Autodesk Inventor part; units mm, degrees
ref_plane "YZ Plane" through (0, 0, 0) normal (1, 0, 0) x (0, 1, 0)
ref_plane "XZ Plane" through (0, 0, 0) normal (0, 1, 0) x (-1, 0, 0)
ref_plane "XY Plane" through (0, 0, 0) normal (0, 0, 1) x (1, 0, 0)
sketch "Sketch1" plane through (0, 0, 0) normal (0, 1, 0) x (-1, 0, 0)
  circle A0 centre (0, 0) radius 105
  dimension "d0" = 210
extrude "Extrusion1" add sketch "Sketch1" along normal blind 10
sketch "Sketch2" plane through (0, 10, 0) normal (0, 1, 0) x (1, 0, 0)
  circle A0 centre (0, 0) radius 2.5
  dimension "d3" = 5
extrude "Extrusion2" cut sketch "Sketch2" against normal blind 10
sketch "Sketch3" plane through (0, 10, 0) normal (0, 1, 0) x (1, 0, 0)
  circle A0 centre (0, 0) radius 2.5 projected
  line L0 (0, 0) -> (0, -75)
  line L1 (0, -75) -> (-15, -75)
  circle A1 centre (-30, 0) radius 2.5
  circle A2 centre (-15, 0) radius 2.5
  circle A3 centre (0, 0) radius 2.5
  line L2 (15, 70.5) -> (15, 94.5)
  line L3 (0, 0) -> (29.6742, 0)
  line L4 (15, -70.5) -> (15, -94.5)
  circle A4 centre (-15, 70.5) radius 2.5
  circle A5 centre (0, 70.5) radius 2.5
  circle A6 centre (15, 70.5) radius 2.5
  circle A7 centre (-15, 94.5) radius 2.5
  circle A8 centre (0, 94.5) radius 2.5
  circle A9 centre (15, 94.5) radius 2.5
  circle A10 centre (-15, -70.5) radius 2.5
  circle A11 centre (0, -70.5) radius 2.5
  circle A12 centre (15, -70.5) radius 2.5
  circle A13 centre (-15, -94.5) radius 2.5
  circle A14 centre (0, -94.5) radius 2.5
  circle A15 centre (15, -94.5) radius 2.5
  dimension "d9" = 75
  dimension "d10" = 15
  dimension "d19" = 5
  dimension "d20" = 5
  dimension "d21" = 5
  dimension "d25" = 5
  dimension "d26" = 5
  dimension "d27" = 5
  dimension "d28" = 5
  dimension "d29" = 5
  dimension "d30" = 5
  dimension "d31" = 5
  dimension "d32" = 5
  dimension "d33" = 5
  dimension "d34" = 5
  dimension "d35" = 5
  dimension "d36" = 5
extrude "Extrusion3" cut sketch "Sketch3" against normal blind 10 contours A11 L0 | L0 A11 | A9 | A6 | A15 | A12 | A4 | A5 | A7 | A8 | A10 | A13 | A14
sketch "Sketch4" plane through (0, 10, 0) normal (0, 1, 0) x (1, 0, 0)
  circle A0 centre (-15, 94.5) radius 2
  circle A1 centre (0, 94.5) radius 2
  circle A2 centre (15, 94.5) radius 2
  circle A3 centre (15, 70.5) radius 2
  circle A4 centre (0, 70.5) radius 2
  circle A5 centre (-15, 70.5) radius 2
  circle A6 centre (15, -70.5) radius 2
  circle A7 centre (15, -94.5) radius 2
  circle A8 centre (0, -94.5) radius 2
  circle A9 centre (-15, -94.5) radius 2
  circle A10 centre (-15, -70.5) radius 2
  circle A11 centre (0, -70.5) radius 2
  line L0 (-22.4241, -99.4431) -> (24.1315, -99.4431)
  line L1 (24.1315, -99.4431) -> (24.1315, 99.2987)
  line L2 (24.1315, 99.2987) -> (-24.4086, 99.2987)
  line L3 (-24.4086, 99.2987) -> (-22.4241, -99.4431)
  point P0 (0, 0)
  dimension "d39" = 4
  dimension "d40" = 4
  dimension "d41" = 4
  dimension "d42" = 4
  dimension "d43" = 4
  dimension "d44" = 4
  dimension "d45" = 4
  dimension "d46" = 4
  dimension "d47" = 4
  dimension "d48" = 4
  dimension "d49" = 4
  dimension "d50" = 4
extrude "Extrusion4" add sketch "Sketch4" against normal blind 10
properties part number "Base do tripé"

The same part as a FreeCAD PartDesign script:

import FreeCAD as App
import Part
import Sketcher

V = App.Vector
Q = App.Units.Quantity


def add_polygon(sketch, points):
    """Adds a closed chain of lines whose ends are joined by coincident constraints."""
    first, n = sketch.GeometryCount, len(points)
    for a, b in zip(points, points[1:] + points[:1]):
        sketch.addGeometry(Part.LineSegment(App.Vector(*a, 0), App.Vector(*b, 0)), False)
    for i in range(n):
        sketch.addConstraint(Sketcher.Constraint("Coincident", first + i, 2, first + (i + 1) % n, 1))

doc = App.newDocument("Part")
body = doc.addObject("PartDesign::Body", "Body")

# Sketch on XZ plane
sketch1 = body.newObject("Sketcher::SketchObject", "Sketch")
sketch1.AttachmentSupport = (doc.getObject("XZ_Plane"), [""])
sketch1.MapMode = "FlatFace"
sketch1.addGeometry(Part.Circle(V(0, 0, 0), V(0, 0, 1), 105), False)
sketch1.addConstraint([
    Sketcher.Constraint("Coincident", 0, 3, -1, 1),
    Sketcher.Constraint("Diameter", 0, Q("210 mm")),
])
pad1 = body.newObject("PartDesign::Pad", "Pad")
pad1.Profile = sketch1
pad1.Length = 10
pad1.Reversed = True

# Sketch on XZ plane
sketch2 = body.newObject("Sketcher::SketchObject", "Sketch001")
sketch2.AttachmentSupport = (doc.getObject("XZ_Plane"), [""])
sketch2.MapMode = "FlatFace"
sketch2.AttachmentOffset = App.Placement(V(0, 0, -10), App.Rotation())
sketch2.addGeometry(Part.Circle(V(0, 0, 0), V(0, 0, 1), 2.5), False)
sketch2.addConstraint([
    Sketcher.Constraint("Coincident", 0, 3, -1, 1),
    Sketcher.Constraint("Diameter", 0, Q("5 mm")),
])
pocket1 = body.newObject("PartDesign::Pocket", "Pocket")
pocket1.Profile = sketch2
pocket1.Length = 10
pocket1.Reversed = True

# Sketch on XZ plane
sketch3 = body.newObject("Sketcher::SketchObject", "Sketch002")
sketch3.AttachmentSupport = (doc.getObject("XZ_Plane"), [""])
sketch3.MapMode = "FlatFace"
sketch3.AttachmentOffset = App.Placement(V(0, 0, -10), App.Rotation())
sketch3.addGeometry([
    Part.Circle(V(0, 70.5, 0), V(0, 0, 1), 2.5),  # 0
    Part.Circle(V(15, -94.5, 0), V(0, 0, 1), 2.5),  # 1
    Part.Circle(V(15, -70.5, 0), V(0, 0, 1), 2.5),  # 2
    Part.Circle(V(15, 94.5, 0), V(0, 0, 1), 2.5),  # 3
    Part.Circle(V(15, 70.5, 0), V(0, 0, 1), 2.5),  # 4
    Part.Circle(V(-15, -70.5, 0), V(0, 0, 1), 2.5),  # 5
    Part.Circle(V(0, -70.5, 0), V(0, 0, 1), 2.5),  # 6
    Part.Circle(V(-15, -94.5, 0), V(0, 0, 1), 2.5),  # 7
    Part.Circle(V(0, -94.5, 0), V(0, 0, 1), 2.5),  # 8
    Part.Circle(V(-15, 70.5, 0), V(0, 0, 1), 2.5),  # 9
    Part.Circle(V(-15, 94.5, 0), V(0, 0, 1), 2.5),  # 10
    Part.Circle(V(0, 94.5, 0), V(0, 0, 1), 2.5),  # 11
], False)
sketch3.addConstraint([
    Sketcher.Constraint("Equal", 0, 1),
    Sketcher.Constraint("Equal", 1, 2),
    Sketcher.Constraint("Equal", 2, 3),
    Sketcher.Constraint("Equal", 3, 4),
    Sketcher.Constraint("Equal", 4, 5),
    Sketcher.Constraint("Equal", 5, 6),
    Sketcher.Constraint("Equal", 6, 7),
    Sketcher.Constraint("Equal", 7, 8),
    Sketcher.Constraint("Equal", 8, 9),
    Sketcher.Constraint("Equal", 9, 10),
    Sketcher.Constraint("Equal", 10, 11),
    Sketcher.Constraint("Symmetric", 4, 3, 5, 3, -1, 1),
    Sketcher.Constraint("Symmetric", 0, 3, 6, 3, -1, 1),
    Sketcher.Constraint("Symmetric", 3, 3, 7, 3, -1, 1),
    Sketcher.Constraint("Symmetric", 2, 3, 9, 3, -1, 1),
    Sketcher.Constraint("Symmetric", 1, 3, 10, 3, -1, 1),
    Sketcher.Constraint("Symmetric", 8, 3, 11, 3, -1, 1),
    Sketcher.Constraint("Symmetric", 2, 3, 5, 3, -2),
    Sketcher.Constraint("Symmetric", 1, 3, 7, 3, -2),
    Sketcher.Constraint("PointOnObject", 0, 3, -2),
    Sketcher.Constraint("PointOnObject", 8, 3, -2),
    Sketcher.Constraint("Horizontal", 0, 3, 4, 3),
    Sketcher.Constraint("Horizontal", 7, 3, 8, 3),
    Sketcher.Constraint("Vertical", 1, 3, 2, 3),
    Sketcher.Constraint("Diameter", 0, Q("5 mm")),
    Sketcher.Constraint("DistanceX", -1, 1, 1, 3, Q("15 mm")),
    Sketcher.Constraint("DistanceY", 1, 3, 0, 3, Q("165 mm")),
    Sketcher.Constraint("DistanceY", 1, 3, 2, 3, Q("24 mm")),
])
pocket2 = body.newObject("PartDesign::Pocket", "Pocket001")
pocket2.Profile = sketch3
pocket2.Length = 10
pocket2.Reversed = True

# Sketch on XZ plane
sketch4 = body.newObject("Sketcher::SketchObject", "Sketch003")
sketch4.AttachmentSupport = (doc.getObject("XZ_Plane"), [""])
sketch4.MapMode = "FlatFace"
sketch4.AttachmentOffset = App.Placement(V(0, 0, -10), App.Rotation())
add_polygon(sketch4, [(-24.4, -99.3), (-22.4, 99.4), (24.1, 99.4), (24.1, -99.3)])  # lines 0-3
sketch4.addGeometry(Part.Circle(V(-15, 94.5, 0), V(0, 0, 1), 2), False)  # 4
sketch4.addGeometry(Part.Circle(V(-15, 70.5, 0), V(0, 0, 1), 2), False)  # 5
sketch4.addGeometry(Part.Circle(V(0, 94.5, 0), V(0, 0, 1), 2), False)  # 6
sketch4.addGeometry(Part.Circle(V(0, 70.5, 0), V(0, 0, 1), 2), False)  # 7
sketch4.addGeometry(Part.Circle(V(15, 94.5, 0), V(0, 0, 1), 2), False)  # 8
sketch4.addGeometry(Part.Circle(V(15, 70.5, 0), V(0, 0, 1), 2), False)  # 9
sketch4.addGeometry(Part.Circle(V(-15, -70.5, 0), V(0, 0, 1), 2), False)  # 10
sketch4.addGeometry(Part.Circle(V(-15, -94.5, 0), V(0, 0, 1), 2), False)  # 11
sketch4.addGeometry(Part.Circle(V(0, -70.5, 0), V(0, 0, 1), 2), False)  # 12
sketch4.addGeometry(Part.Circle(V(0, -94.5, 0), V(0, 0, 1), 2), False)  # 13
sketch4.addGeometry(Part.Circle(V(15, -70.5, 0), V(0, 0, 1), 2), False)  # 14
sketch4.addGeometry(Part.Circle(V(15, -94.5, 0), V(0, 0, 1), 2), False)  # 15
sketch4.addConstraint([
    Sketcher.Constraint("Horizontal", 1),
    Sketcher.Constraint("Vertical", 2),
    Sketcher.Constraint("Horizontal", 3),
    Sketcher.Constraint("Equal", 4, 5),
    Sketcher.Constraint("Equal", 5, 6),
    Sketcher.Constraint("Equal", 6, 7),
    Sketcher.Constraint("Equal", 7, 8),
    Sketcher.Constraint("Equal", 8, 9),
    Sketcher.Constraint("Equal", 9, 10),
    Sketcher.Constraint("Equal", 10, 11),
    Sketcher.Constraint("Equal", 11, 12),
    Sketcher.Constraint("Equal", 12, 13),
    Sketcher.Constraint("Equal", 13, 14),
    Sketcher.Constraint("Equal", 14, 15),
    Sketcher.Constraint("Symmetric", 9, 3, 10, 3, -1, 1),
    Sketcher.Constraint("Symmetric", 8, 3, 11, 3, -1, 1),
    Sketcher.Constraint("Symmetric", 7, 3, 12, 3, -1, 1),
    Sketcher.Constraint("Symmetric", 6, 3, 13, 3, -1, 1),
    Sketcher.Constraint("Symmetric", 5, 3, 14, 3, -1, 1),
    Sketcher.Constraint("Symmetric", 4, 3, 15, 3, -1, 1),
    Sketcher.Constraint("Symmetric", 4, 3, 8, 3, -2),
    Sketcher.Constraint("Symmetric", 5, 3, 9, 3, -2),
    Sketcher.Constraint("PointOnObject", 6, 3, -2),
    Sketcher.Constraint("PointOnObject", 7, 3, -2),
    Sketcher.Constraint("Horizontal", 4, 3, 6, 3),
    Sketcher.Constraint("Horizontal", 5, 3, 7, 3),
    Sketcher.Constraint("Vertical", 4, 3, 5, 3),
    Sketcher.Constraint("Diameter", 4, Q("4 mm")),
    Sketcher.Constraint("DistanceX", 4, 3, -1, 1, Q("15 mm")),
    Sketcher.Constraint("DistanceY", 5, 3, 4, 3, Q("24 mm")),
    Sketcher.Constraint("DistanceY", 10, 3, 5, 3, Q("141 mm")),
    Sketcher.Constraint("DistanceX", 3, 2, 3, 1, Q("48.54 mm")),
    Sketcher.Constraint("DistanceX", 1, 1, 1, 2, Q("46.5556 mm")),
    Sketcher.Constraint("DistanceY", 2, 2, 2, 1, Q("198.7418 mm")),
    Sketcher.Constraint("DistanceX", 0, 2, -1, 1, Q("22.424 mm")),
    Sketcher.Constraint("DistanceY", -1, 1, 0, 2, Q("99.443 mm")),
])
pad2 = body.newObject("PartDesign::Pad", "Pad001")
pad2.Profile = sketch4
pad2.Length = 10

doc.recompute()
